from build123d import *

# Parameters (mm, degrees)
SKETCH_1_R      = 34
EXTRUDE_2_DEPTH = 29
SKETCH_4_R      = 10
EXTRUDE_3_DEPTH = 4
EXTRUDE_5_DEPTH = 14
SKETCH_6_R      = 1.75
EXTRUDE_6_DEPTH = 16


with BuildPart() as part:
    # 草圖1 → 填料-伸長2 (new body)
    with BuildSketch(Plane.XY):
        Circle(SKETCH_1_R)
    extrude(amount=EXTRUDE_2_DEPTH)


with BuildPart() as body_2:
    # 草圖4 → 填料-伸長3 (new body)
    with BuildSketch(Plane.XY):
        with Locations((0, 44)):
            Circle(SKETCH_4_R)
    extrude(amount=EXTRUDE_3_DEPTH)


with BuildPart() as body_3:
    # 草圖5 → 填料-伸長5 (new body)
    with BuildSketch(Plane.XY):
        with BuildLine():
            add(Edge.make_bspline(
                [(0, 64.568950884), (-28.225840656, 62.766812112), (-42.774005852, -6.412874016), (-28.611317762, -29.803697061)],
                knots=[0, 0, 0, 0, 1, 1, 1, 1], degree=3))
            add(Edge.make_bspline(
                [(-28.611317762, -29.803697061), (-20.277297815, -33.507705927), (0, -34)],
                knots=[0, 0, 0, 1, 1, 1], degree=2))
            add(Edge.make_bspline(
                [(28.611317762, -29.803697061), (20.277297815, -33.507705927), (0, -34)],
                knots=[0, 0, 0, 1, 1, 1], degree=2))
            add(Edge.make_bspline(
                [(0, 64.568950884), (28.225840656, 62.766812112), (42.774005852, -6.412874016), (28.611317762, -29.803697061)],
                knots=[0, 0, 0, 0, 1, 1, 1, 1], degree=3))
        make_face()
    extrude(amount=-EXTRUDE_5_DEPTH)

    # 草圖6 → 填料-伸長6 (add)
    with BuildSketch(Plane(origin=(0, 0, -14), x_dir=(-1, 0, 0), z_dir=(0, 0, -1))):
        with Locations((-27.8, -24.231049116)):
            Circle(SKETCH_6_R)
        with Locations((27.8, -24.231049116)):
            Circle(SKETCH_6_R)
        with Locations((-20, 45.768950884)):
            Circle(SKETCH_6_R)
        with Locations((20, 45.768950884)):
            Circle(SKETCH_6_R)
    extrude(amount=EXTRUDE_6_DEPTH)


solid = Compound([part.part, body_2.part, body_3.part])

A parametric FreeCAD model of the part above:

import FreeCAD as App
import Part
import Sketcher

doc = App.newDocument("Part")
body = doc.addObject("PartDesign::Body", "Body")

sketch1 = doc.addObject("Sketcher::SketchObject", "Sketch")
body.addObject(sketch1)
sketch1.AttachmentSupport = (doc.XY_Plane, [""])
sketch1.MapMode = "FlatFace"
sketch1.addGeometry(Part.Circle(App.Vector(0, 0, 0), App.Vector(0, 0, 1), 34), False)
sketch1.addConstraint(Sketcher.Constraint("Coincident", 0, 3, -1, 1))
sketch1.addConstraint(Sketcher.Constraint("Diameter", 0, 68.0))
pad1 = doc.addObject("PartDesign::Pad", "Pad")
body.addObject(pad1)
pad1.Profile = sketch1
pad1.Length = 29
body2 = doc.addObject("PartDesign::Body", "Body001")

sketch2 = doc.addObject("Sketcher::SketchObject", "Sketch001")
body2.addObject(sketch2)
sketch2.AttachmentSupport = (doc.getObject("XY_Plane001"), [""])
sketch2.MapMode = "FlatFace"
sketch2.addGeometry(Part.Circle(App.Vector(0, 44, 0), App.Vector(0, 0, 1), 10), False)
sketch2.addConstraint(Sketcher.Constraint("PointOnObject", 0, 3, -2))
sketch2.addConstraint(Sketcher.Constraint("Diameter", 0, 20.0))
sketch2.addConstraint(Sketcher.Constraint("DistanceY", -1, 1, 0, 3, 44.0))
pad2 = doc.addObject("PartDesign::Pad", "Pad001")
body2.addObject(pad2)
pad2.Profile = sketch2
pad2.Length = 4
body3 = doc.addObject("PartDesign::Body", "Body002")

sketch3 = doc.addObject("Sketcher::SketchObject", "Sketch002")
body3.addObject(sketch3)
sketch3.AttachmentSupport = (doc.getObject("XY_Plane002"), [""])
sketch3.MapMode = "FlatFace"
sketch3.addGeometry(Part.BSplineCurve([App.Vector(0, 64.568951, 0), App.Vector(-28.225841, 62.766812, 0), App.Vector(-42.774006, -6.412874, 0), App.Vector(-28.611318, -29.803697, 0)], [4, 4], [0, 1], False, 3, [1, 1, 1, 1], False), False)
sketch3.addGeometry(Part.BSplineCurve([App.Vector(-28.611318, -29.803697, 0), App.Vector(-20.277298, -33.507706, 0), App.Vector(0, -34, 0)], [3, 3], [0, 1], False, 2, [1, 1, 1], False), False)
sketch3.addGeometry(Part.BSplineCurve([App.Vector(28.611318, -29.803697, 0), App.Vector(20.277298, -33.507706, 0), App.Vector(0, -34, 0)], [3, 3], [0, 1], False, 2, [1, 1, 1], False), False)
sketch3.addGeometry(Part.BSplineCurve([App.Vector(0, 64.568951, 0), App.Vector(28.225841, 62.766812, 0), App.Vector(42.774006, -6.412874, 0), App.Vector(28.611318, -29.803697, 0)], [4, 4], [0, 1], False, 3, [1, 1, 1, 1], False), False)
sketch3.addConstraint(Sketcher.Constraint("Block", 0))
sketch3.addConstraint(Sketcher.Constraint("Block", 1))
sketch3.addConstraint(Sketcher.Constraint("Block", 2))
sketch3.addConstraint(Sketcher.Constraint("Block", 3))
pad3 = doc.addObject("PartDesign::Pad", "Pad002")
body3.addObject(pad3)
pad3.Profile = sketch3
pad3.Length = 14
pad3.Reversed = True

sketch4 = doc.addObject("Sketcher::SketchObject", "Sketch003")
body3.addObject(sketch4)
sketch4.AttachmentSupport = (doc.getObject("XY_Plane002"), [""])
sketch4.MapMode = "FlatFace"
sketch4.AttachmentOffset = App.Placement(App.Vector(0, 0, -14), App.Rotation())
sketch4.addGeometry(Part.Circle(App.Vector(27.8, -24.2, 0), App.Vector(0, 0, 1), 1.8), False)
sketch4.addGeometry(Part.Circle(App.Vector(-27.8, -24.2, 0), App.Vector(0, 0, 1), 1.8), False)
sketch4.addGeometry(Part.Circle(App.Vector(20, 45.8, 0), App.Vector(0, 0, 1), 1.8), False)
sketch4.addGeometry(Part.Circle(App.Vector(-20, 45.8, 0), App.Vector(0, 0, 1), 1.8), False)
sketch4.addConstraint(Sketcher.Constraint("Equal", 0, 1))
sketch4.addConstraint(Sketcher.Constraint("Equal", 1, 2))
sketch4.addConstraint(Sketcher.Constraint("Equal", 2, 3))
sketch4.addConstraint(Sketcher.Constraint("Symmetric", 0, 3, 1, 3, -2))
sketch4.addConstraint(Sketcher.Constraint("Symmetric", 2, 3, 3, 3, -2))
sketch4.addConstraint(Sketcher.Constraint("Diameter", 0, 3.5))
sketch4.addConstraint(Sketcher.Constraint("DistanceX", -1, 1, 2, 3, 20.0))
sketch4.addConstraint(Sketcher.Constraint("DistanceY", 0, 3, 2, 3, 70.0))
sketch4.addConstraint(Sketcher.Constraint("DistanceX", -1, 1, 0, 3, 27.8))
sketch4.addConstraint(Sketcher.Constraint("DistanceY", 0, 3, -1, 1, 24.231049))
pad4 = doc.addObject("PartDesign::Pad", "Pad003")
body3.addObject(pad4)
pad4.Profile = sketch4
pad4.Length = 16
pad4.Reversed = True

doc.recompute()
